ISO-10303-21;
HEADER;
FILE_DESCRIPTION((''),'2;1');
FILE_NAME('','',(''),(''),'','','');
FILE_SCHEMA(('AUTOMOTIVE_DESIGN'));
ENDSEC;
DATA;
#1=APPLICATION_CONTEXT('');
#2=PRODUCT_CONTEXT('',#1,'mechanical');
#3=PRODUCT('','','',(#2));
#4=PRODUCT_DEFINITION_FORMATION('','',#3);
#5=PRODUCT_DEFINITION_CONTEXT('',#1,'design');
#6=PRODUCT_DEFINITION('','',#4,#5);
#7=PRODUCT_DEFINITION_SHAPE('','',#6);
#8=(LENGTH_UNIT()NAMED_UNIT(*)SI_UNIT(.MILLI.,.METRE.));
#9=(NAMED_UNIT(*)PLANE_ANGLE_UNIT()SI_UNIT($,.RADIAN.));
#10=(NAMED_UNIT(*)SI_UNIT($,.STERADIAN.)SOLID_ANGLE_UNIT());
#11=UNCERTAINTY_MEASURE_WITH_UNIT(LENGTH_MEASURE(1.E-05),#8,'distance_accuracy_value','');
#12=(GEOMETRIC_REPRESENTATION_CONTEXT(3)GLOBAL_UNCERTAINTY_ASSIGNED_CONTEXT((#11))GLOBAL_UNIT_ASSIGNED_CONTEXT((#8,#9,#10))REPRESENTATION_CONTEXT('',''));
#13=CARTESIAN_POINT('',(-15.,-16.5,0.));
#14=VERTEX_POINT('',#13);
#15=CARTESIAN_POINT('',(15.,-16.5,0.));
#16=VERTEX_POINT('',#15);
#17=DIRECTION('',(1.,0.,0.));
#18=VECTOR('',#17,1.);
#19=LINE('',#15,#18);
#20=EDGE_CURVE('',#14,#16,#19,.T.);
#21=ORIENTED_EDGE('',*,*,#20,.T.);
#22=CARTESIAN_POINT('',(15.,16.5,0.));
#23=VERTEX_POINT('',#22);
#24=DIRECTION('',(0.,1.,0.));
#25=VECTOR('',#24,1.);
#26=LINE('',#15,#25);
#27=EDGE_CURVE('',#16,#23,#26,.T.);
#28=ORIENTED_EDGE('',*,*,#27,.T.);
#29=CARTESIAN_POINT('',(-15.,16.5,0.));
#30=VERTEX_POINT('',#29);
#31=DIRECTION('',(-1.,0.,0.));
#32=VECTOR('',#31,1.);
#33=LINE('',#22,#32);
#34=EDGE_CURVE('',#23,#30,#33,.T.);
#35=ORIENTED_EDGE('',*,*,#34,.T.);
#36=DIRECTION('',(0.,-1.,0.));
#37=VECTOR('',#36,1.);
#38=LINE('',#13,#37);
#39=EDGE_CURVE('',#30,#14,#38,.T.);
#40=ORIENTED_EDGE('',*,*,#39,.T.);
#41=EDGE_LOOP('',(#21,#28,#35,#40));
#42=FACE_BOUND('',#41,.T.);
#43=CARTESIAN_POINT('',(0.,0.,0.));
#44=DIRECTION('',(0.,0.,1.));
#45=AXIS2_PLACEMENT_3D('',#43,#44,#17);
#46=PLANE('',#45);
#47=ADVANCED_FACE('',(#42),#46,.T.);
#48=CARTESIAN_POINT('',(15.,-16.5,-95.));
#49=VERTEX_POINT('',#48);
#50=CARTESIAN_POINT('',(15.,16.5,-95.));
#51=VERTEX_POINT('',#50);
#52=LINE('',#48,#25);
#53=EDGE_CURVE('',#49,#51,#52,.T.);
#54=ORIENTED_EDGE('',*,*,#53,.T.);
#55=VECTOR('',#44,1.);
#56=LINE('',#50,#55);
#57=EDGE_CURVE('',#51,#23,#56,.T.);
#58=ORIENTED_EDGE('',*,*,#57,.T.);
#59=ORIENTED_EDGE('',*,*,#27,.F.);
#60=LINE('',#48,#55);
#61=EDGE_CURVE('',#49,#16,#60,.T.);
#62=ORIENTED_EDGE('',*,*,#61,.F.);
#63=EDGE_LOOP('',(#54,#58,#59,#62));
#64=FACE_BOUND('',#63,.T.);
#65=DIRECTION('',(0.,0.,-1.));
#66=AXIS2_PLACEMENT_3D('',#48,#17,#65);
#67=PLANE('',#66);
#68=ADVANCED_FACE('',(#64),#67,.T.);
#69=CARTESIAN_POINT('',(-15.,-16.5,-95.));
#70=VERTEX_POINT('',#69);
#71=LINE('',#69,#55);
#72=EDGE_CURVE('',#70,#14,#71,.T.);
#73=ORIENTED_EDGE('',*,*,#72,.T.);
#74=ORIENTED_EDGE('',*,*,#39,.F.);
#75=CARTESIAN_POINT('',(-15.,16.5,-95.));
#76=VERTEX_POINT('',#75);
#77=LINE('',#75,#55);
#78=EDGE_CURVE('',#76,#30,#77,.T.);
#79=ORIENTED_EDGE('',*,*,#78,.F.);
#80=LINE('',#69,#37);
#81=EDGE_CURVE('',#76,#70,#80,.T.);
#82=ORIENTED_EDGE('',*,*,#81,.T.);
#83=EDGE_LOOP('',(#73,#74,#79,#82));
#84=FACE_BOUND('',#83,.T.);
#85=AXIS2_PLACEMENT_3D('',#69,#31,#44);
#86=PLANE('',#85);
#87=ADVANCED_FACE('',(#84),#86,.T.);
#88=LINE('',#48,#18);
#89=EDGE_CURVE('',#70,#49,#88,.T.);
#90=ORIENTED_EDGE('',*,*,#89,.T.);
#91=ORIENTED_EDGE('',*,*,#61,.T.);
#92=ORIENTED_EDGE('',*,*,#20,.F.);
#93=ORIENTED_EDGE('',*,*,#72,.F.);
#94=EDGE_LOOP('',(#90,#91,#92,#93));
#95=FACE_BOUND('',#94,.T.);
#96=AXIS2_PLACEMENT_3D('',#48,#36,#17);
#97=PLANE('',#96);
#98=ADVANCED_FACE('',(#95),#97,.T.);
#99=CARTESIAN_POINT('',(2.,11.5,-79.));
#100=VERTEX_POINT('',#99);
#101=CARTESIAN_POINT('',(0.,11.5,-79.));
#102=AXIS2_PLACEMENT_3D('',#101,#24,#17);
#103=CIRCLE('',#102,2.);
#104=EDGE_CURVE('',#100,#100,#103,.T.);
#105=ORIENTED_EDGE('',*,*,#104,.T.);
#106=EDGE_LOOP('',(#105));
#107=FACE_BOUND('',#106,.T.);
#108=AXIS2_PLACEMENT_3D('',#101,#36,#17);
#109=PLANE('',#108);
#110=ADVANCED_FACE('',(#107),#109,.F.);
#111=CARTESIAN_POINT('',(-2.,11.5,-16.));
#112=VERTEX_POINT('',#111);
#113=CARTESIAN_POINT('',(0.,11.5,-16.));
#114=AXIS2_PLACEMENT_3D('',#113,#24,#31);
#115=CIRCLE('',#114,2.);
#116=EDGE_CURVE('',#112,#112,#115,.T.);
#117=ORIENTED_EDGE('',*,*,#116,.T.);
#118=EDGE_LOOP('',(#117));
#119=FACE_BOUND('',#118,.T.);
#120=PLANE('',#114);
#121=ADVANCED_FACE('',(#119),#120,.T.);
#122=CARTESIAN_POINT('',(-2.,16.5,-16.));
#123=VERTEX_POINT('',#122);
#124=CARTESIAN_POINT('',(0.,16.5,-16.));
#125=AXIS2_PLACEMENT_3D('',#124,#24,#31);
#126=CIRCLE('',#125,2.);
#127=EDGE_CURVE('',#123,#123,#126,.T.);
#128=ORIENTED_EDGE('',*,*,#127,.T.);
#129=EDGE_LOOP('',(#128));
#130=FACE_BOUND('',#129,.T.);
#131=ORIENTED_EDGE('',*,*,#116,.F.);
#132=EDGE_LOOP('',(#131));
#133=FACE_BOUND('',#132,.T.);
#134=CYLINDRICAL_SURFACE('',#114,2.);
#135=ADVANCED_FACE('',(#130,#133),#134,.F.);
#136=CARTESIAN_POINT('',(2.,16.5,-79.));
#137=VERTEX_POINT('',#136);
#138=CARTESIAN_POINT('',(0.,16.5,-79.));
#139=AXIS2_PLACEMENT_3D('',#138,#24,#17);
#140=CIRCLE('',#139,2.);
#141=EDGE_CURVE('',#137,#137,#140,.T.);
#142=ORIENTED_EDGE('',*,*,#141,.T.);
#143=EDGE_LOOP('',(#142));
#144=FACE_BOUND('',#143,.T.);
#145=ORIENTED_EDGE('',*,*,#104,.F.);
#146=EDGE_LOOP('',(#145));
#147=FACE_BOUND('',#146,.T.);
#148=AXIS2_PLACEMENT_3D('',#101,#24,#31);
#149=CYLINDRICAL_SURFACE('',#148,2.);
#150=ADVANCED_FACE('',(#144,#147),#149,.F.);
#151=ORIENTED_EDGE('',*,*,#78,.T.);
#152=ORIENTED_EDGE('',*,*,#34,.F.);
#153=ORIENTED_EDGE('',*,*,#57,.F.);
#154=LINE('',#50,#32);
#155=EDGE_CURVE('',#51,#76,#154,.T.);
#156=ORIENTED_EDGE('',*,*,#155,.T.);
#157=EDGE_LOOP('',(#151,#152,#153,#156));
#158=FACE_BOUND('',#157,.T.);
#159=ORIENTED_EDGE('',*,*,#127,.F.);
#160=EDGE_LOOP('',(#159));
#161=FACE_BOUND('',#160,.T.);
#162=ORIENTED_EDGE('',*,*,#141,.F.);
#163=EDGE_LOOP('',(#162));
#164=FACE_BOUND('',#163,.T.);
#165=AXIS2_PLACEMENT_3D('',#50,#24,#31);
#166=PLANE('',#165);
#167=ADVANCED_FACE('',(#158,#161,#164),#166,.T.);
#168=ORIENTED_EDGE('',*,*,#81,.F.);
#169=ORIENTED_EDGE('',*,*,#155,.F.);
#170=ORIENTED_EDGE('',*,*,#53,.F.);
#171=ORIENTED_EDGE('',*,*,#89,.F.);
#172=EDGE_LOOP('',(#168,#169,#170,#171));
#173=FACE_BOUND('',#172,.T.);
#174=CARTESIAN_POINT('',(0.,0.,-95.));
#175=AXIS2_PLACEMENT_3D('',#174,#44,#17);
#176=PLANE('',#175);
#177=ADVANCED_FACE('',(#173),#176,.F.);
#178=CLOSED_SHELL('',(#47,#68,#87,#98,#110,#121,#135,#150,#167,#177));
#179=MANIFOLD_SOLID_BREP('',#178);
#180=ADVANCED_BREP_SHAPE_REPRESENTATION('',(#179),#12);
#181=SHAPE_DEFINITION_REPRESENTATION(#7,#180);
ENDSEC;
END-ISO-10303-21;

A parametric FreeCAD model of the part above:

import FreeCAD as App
import Part
import Sketcher

V = App.Vector

doc = App.newDocument("Part")
body = doc.addObject("PartDesign::Body", "Body")

# Sketch on XY plane
sketch1 = body.newObject("Sketcher::SketchObject", "Sketch")
sketch1.AttachmentSupport = (doc.getObject("XY_Plane"), [""])
sketch1.MapMode = "FlatFace"
sketch1.addGeometry(Part.LineSegment(V(-15, 16, 0), V(-15, -16, 0)), False)
sketch1.addGeometry(Part.LineSegment(V(-15, -16, 0), V(15, -16, 0)), False)
sketch1.addGeometry(Part.LineSegment(V(15, -16, 0), V(15, 16, 0)), False)
sketch1.addGeometry(Part.LineSegment(V(15, 16, 0), V(-15, 16, 0)), False)
sketch1.addConstraint(Sketcher.Constraint("Coincident", 0, 2, 1, 1))
sketch1.addConstraint(Sketcher.Constraint("Coincident", 1, 2, 2, 1))
sketch1.addConstraint(Sketcher.Constraint("Coincident", 2, 2, 3, 1))
sketch1.addConstraint(Sketcher.Constraint("Coincident", 3, 2, 0, 1))
sketch1.addConstraint(Sketcher.Constraint("Vertical", 0))
sketch1.addConstraint(Sketcher.Constraint("Horizontal", 1))
sketch1.addConstraint(Sketcher.Constraint("Vertical", 2))
sketch1.addConstraint(Sketcher.Constraint("Horizontal", 3))
sketch1.addConstraint(Sketcher.Constraint("Symmetric", 0, 2, 2, 2, -1, 1))
sketch1.addConstraint(Sketcher.Constraint("DistanceX", 1, 1, 1, 2, 30.0))
sketch1.addConstraint(Sketcher.Constraint("DistanceY", 0, 2, 0, 1, 33.0))
pad1 = body.newObject("PartDesign::Pad", "Pad")
pad1.Profile = sketch1
pad1.Length = 95
pad1.Reversed = True

# Sketch on XZ plane
sketch2 = body.newObject("Sketcher::SketchObject", "Sketch001")
sketch2.AttachmentSupport = (doc.getObject("XZ_Plane"), [""])
sketch2.MapMode = "FlatFace"
sketch2.AttachmentOffset = App.Placement(V(0, 0, -16.5), App.Rotation())
sketch2.addGeometry(Part.Circle(V(0, -16, 0), V(0, 0, 1), 2), False)
sketch2.addGeometry(Part.Circle(V(0, -79, 0), V(0, 0, 1), 2), False)
sketch2.addConstraint(Sketcher.Constraint("Equal", 0, 1))
sketch2.addConstraint(Sketcher.Constraint("PointOnObject", 0, 3, -2))
sketch2.addConstraint(Sketcher.Constraint("PointOnObject", 1, 3, -2))
sketch2.addConstraint(Sketcher.Constraint("Diameter", 0, 4.0))
sketch2.addConstraint(Sketcher.Constraint("DistanceY", 0, 3, -1, 1, 16.0))
sketch2.addConstraint(Sketcher.Constraint("DistanceY", 1, 3, -1, 1, 79.0))
pocket1 = body.newObject("PartDesign::Pocket", "Pocket")
pocket1.Profile = sketch2
pocket1.Length = 5
pocket1.Reversed = True

doc.recompute()
